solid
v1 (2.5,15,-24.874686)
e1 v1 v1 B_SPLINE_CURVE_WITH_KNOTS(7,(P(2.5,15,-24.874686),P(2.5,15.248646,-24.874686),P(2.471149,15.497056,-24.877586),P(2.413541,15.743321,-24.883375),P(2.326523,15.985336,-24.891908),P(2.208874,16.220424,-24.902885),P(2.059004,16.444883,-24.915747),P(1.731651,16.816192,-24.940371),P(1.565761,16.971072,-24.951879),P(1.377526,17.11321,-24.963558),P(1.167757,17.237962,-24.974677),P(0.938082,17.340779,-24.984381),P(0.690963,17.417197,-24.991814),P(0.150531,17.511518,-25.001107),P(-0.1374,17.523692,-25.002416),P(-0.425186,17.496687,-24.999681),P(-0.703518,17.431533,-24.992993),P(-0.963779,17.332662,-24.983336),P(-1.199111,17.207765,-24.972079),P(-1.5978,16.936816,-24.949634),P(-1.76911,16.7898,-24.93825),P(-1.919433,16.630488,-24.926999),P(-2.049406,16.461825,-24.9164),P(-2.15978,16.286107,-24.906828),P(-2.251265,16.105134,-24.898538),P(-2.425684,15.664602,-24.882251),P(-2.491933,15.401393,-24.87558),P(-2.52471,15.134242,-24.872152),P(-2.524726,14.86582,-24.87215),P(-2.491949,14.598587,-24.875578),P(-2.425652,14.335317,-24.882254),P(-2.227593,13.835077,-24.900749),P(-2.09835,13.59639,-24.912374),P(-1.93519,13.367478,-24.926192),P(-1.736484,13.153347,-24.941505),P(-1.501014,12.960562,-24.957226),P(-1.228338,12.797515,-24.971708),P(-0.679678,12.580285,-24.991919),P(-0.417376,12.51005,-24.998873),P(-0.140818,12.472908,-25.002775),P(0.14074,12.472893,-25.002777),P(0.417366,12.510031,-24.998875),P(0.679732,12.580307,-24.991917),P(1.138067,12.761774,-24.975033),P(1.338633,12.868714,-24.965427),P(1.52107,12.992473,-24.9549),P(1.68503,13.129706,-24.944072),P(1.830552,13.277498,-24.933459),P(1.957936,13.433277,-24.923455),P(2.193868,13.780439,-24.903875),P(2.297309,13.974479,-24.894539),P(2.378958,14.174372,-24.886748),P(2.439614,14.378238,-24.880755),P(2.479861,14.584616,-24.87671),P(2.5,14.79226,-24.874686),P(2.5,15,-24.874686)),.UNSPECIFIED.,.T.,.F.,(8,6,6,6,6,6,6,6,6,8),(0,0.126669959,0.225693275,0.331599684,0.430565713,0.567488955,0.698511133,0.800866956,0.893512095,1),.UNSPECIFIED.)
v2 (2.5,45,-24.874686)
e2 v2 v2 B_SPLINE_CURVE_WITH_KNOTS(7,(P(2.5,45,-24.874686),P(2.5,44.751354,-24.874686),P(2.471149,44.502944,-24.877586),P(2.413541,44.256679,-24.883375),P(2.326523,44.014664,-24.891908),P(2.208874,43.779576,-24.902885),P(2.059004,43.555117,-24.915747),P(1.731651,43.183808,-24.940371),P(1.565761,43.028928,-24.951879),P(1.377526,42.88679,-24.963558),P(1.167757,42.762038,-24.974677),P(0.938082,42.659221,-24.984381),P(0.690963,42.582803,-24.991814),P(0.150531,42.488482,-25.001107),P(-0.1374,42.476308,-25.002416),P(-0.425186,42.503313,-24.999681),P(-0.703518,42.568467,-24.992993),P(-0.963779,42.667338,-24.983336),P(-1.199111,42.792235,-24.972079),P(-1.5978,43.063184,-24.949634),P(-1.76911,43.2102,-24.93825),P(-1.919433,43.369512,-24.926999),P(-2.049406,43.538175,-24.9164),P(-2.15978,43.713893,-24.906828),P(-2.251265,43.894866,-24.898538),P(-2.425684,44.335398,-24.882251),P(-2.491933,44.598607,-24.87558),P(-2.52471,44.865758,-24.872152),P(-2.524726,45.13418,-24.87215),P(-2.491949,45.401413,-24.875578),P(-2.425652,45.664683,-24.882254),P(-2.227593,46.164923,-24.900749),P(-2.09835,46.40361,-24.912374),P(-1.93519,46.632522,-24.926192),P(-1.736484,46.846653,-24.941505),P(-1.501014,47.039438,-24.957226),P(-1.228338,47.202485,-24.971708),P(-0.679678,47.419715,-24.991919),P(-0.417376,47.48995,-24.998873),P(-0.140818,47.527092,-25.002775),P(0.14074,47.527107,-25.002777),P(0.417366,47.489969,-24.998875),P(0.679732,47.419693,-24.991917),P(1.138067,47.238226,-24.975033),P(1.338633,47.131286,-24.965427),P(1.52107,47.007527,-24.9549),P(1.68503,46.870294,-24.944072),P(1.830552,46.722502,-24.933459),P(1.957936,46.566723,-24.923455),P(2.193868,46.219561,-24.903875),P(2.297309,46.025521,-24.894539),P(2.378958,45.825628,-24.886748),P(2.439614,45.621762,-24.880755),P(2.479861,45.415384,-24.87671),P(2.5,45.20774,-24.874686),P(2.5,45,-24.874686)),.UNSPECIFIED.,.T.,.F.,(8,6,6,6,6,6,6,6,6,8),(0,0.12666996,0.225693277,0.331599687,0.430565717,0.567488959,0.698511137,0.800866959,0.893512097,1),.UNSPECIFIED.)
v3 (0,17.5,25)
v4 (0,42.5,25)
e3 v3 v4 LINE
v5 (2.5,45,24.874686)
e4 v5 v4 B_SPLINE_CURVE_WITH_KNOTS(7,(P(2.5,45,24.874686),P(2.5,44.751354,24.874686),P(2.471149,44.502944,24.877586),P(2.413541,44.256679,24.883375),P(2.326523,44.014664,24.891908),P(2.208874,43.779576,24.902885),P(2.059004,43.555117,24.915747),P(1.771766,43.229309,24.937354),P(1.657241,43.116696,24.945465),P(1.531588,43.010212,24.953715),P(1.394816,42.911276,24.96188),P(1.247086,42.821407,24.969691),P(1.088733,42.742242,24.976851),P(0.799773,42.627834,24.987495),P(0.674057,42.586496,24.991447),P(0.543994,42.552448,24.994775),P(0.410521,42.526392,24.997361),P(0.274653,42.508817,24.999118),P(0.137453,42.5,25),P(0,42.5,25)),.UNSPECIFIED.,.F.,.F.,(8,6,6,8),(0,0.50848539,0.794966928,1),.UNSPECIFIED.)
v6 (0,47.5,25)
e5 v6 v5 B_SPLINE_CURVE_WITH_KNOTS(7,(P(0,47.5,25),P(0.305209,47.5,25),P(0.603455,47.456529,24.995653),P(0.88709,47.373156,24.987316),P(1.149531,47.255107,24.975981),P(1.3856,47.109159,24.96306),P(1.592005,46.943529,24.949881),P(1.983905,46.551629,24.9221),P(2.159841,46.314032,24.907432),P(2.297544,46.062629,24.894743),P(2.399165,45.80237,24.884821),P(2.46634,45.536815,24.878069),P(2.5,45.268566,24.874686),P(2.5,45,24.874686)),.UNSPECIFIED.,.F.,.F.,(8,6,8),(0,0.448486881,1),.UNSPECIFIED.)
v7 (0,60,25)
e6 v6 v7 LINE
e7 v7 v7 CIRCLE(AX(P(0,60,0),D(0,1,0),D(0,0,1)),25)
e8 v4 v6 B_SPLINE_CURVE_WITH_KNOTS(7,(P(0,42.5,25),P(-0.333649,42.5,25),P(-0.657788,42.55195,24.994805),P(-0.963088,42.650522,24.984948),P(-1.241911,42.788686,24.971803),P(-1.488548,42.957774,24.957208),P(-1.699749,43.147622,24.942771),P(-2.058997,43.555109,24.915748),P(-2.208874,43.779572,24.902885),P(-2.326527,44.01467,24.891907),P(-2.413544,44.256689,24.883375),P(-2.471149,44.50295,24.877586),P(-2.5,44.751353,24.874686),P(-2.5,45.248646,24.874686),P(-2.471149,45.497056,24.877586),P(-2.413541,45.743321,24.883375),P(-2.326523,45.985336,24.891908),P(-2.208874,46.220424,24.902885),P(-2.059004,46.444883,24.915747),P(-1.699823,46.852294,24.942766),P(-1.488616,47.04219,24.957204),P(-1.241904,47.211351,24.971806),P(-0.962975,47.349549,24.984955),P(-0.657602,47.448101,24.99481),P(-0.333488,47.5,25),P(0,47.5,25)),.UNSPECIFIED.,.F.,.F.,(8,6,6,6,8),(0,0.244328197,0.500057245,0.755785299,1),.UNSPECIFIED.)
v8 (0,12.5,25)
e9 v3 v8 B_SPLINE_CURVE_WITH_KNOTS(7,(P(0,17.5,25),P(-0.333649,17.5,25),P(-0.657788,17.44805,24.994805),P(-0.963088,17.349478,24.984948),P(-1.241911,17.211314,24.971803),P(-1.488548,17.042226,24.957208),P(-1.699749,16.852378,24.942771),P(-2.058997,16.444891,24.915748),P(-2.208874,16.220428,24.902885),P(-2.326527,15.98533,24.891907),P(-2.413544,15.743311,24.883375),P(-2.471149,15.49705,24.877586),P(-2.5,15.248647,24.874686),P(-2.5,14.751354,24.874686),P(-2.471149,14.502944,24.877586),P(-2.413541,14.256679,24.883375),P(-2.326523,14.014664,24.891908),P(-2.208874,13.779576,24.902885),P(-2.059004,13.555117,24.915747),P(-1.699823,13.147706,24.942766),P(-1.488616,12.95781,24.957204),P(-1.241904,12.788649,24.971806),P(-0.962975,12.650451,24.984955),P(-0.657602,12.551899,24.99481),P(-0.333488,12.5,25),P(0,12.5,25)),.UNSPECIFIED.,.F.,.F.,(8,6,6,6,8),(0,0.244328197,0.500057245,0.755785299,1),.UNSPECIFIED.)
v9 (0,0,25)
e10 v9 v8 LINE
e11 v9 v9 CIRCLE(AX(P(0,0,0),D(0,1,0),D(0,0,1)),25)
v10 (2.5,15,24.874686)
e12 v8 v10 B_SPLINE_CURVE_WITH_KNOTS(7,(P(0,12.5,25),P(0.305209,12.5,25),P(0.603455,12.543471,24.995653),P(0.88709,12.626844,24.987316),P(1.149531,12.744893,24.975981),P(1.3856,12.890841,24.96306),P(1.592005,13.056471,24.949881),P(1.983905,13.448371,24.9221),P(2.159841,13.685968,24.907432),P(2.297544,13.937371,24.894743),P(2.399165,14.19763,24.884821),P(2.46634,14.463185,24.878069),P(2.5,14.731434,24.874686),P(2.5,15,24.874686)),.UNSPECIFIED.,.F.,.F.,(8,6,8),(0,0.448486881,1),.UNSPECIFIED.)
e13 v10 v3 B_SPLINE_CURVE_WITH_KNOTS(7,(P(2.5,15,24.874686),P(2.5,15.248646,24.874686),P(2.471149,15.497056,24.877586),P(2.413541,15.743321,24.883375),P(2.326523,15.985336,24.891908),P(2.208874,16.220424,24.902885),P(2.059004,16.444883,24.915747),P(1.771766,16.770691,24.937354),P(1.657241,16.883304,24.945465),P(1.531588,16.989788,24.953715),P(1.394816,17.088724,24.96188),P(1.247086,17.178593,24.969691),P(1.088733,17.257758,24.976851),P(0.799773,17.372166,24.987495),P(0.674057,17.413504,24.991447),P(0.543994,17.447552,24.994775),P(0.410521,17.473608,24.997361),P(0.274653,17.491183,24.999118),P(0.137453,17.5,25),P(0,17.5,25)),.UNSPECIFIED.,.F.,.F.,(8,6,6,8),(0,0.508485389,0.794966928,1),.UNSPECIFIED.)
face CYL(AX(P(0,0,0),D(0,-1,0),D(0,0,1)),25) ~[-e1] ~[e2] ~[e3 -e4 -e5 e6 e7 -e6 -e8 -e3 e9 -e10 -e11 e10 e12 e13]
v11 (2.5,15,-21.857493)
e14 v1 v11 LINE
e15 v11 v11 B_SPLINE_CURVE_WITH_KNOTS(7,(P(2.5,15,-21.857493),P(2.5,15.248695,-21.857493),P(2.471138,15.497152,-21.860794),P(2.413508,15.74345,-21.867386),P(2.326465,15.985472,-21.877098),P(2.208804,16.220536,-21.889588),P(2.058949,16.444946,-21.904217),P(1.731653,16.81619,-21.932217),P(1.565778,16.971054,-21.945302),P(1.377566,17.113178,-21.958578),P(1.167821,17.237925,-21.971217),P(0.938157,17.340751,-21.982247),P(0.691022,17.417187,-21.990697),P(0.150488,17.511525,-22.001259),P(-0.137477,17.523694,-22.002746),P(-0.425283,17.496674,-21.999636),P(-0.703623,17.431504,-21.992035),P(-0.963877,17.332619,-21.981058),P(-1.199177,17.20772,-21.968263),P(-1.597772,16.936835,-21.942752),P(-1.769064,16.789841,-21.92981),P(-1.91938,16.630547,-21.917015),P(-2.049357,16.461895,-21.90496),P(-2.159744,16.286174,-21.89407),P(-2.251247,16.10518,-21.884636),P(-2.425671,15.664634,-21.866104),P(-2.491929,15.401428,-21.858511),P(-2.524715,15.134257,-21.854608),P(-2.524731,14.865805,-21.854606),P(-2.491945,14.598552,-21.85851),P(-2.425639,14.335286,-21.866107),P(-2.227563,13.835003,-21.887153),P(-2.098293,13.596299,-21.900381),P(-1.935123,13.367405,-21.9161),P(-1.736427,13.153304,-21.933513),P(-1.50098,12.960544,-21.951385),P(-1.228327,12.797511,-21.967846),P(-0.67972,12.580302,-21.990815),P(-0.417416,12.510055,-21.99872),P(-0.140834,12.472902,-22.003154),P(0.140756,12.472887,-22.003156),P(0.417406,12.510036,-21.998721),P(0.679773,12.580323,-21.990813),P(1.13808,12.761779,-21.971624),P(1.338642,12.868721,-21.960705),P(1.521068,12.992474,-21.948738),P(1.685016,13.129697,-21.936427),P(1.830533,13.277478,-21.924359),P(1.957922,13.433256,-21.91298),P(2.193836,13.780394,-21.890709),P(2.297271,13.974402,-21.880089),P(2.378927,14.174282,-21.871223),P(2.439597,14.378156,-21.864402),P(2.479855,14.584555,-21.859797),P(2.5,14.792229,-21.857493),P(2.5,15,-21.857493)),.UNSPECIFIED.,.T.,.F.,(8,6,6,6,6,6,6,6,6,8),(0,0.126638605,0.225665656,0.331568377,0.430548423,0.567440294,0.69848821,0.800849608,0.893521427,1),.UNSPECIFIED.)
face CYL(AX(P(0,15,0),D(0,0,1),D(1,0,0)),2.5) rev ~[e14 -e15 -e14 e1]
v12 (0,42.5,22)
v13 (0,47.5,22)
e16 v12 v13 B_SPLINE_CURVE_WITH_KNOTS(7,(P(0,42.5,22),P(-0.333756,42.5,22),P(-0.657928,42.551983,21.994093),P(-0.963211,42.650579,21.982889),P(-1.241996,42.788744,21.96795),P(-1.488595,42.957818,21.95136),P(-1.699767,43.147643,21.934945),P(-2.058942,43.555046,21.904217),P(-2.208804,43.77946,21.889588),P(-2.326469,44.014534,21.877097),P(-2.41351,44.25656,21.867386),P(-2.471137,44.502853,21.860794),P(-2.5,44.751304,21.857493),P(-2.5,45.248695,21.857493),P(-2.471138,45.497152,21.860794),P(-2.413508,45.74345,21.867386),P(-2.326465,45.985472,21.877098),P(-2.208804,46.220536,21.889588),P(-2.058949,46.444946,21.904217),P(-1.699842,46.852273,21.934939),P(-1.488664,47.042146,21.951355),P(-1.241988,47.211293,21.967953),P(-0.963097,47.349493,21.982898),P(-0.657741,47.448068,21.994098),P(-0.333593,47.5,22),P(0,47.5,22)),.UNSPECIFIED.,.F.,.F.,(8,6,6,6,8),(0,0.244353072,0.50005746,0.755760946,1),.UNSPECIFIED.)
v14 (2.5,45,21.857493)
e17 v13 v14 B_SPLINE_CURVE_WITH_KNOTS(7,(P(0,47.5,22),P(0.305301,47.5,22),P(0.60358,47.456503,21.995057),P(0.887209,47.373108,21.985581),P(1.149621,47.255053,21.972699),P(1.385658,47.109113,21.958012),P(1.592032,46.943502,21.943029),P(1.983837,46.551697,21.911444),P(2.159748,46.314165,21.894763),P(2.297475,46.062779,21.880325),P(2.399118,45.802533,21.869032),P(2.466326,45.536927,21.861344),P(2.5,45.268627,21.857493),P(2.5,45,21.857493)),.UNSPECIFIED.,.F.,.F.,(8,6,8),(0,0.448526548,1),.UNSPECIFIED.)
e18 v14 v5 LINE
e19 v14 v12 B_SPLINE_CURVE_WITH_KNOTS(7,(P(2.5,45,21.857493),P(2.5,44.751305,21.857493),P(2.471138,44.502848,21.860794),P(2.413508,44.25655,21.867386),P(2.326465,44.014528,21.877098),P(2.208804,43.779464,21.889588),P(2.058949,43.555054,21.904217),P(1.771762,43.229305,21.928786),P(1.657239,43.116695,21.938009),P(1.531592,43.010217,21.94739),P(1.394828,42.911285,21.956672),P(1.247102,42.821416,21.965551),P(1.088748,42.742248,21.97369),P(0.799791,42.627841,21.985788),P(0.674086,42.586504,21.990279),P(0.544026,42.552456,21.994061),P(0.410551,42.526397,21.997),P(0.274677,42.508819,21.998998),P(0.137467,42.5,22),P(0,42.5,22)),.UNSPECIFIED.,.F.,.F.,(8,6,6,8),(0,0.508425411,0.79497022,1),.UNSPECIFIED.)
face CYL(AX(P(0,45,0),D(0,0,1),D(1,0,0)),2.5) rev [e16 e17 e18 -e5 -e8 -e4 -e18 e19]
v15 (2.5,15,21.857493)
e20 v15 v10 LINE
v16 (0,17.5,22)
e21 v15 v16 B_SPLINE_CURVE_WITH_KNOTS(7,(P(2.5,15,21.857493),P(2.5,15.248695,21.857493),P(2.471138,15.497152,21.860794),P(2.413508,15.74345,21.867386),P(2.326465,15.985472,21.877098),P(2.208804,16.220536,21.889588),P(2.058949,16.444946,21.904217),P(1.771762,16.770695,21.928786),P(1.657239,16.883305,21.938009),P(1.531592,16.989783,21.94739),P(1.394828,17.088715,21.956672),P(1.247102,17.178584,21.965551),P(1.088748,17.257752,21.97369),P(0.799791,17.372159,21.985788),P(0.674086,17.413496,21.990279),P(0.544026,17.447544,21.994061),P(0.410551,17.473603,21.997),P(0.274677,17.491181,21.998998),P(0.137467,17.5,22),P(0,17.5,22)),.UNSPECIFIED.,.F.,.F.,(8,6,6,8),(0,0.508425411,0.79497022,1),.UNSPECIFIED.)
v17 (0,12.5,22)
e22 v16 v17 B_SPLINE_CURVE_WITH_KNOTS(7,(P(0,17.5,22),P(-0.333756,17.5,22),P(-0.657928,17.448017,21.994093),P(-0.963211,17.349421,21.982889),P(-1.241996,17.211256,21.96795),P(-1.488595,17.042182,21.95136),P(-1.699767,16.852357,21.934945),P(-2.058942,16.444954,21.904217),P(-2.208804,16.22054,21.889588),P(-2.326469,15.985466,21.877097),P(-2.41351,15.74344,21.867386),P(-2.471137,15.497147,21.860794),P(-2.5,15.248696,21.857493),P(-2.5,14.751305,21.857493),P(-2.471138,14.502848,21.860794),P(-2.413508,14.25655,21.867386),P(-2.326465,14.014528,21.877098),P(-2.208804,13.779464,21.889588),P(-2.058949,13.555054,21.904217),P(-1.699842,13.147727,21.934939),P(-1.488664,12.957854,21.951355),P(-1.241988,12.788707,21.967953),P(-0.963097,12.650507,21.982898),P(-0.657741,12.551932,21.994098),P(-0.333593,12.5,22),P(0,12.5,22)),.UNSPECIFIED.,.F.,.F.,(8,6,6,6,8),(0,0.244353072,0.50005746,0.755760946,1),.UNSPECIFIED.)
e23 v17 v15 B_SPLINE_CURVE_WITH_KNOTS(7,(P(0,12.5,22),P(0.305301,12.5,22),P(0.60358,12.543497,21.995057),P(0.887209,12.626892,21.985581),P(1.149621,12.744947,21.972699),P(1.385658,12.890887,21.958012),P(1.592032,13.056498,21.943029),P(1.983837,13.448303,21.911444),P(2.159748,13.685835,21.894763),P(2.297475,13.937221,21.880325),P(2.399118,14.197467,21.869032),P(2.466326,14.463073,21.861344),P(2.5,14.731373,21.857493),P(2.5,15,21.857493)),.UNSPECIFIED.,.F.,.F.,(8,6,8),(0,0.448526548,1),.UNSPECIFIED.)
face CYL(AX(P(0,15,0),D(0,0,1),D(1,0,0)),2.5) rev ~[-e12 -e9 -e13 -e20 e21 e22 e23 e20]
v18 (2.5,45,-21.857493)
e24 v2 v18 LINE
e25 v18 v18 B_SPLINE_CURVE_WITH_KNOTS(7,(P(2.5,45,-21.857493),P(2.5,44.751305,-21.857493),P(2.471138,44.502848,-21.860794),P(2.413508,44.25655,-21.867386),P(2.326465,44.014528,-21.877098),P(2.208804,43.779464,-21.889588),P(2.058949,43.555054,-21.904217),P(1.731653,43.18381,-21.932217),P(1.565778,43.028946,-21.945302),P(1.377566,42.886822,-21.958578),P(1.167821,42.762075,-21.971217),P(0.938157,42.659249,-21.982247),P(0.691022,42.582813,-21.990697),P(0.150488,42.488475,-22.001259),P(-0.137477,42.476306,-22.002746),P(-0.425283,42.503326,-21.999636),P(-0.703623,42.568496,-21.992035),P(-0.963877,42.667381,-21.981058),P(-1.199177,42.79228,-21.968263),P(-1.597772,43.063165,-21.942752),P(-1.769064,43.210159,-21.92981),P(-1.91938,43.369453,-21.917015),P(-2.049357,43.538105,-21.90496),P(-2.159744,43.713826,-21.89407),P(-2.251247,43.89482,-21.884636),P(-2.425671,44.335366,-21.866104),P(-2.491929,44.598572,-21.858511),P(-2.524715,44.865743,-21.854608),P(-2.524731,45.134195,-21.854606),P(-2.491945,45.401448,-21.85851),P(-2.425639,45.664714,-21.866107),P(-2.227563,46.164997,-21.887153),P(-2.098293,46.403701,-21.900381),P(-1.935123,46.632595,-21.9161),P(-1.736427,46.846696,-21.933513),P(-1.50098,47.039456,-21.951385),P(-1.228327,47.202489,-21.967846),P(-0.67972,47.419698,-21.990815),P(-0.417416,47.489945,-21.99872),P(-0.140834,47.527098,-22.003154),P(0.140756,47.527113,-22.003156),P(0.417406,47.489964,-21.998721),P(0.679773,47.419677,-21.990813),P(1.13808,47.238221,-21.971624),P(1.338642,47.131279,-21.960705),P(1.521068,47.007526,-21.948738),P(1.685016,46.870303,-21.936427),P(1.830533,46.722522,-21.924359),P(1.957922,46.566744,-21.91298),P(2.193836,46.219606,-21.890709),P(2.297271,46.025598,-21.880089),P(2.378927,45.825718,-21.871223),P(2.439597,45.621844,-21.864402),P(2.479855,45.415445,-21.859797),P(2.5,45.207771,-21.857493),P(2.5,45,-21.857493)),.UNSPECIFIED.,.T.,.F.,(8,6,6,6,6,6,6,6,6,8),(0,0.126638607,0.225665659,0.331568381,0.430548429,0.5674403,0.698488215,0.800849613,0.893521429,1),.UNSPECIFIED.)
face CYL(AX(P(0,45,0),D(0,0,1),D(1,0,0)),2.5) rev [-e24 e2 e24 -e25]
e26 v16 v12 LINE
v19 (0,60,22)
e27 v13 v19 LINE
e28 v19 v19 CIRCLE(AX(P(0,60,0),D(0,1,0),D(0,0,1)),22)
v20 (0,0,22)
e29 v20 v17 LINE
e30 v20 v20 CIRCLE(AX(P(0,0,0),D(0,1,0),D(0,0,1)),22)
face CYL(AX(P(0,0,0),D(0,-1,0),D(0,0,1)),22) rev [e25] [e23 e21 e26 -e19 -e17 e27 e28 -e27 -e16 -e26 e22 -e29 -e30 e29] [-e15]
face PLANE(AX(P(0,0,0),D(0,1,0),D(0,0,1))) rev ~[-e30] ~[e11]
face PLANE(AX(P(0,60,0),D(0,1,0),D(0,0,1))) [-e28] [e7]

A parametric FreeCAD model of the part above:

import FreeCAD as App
import Part
import Sketcher

V = App.Vector

doc = App.newDocument("Part")
body = doc.addObject("PartDesign::Body", "Body")

sketch1 = doc.addObject("Sketcher::SketchObject", "Sketch")
body.addObject(sketch1)
sketch1.AttachmentSupport = (doc.XZ_Plane, [""])
sketch1.MapMode = "FlatFace"
sketch1.addGeometry(Part.Circle(V(0, 0, 0), V(0, 0, 1), 25), False)
sketch1.addGeometry(Part.Circle(V(0, 0, 0), V(0, 0, 1), 22), False)
sketch1.addConstraint(Sketcher.Constraint("Coincident", 0, 3, -1, 1))
sketch1.addConstraint(Sketcher.Constraint("Coincident", 1, 3, -1, 1))
sketch1.addConstraint(Sketcher.Constraint("Diameter", 0, 50.0))
sketch1.addConstraint(Sketcher.Constraint("Diameter", 1, 44.0))
pad1 = doc.addObject("PartDesign::Pad", "Pad")
body.addObject(pad1)
pad1.Profile = sketch1
pad1.Length = 60
pad1.Reversed = True

sketch2 = doc.addObject("Sketcher::SketchObject", "Sketch001")
body.addObject(sketch2)
sketch2.AttachmentSupport = (doc.XY_Plane, [""])
sketch2.MapMode = "FlatFace"
sketch2.addGeometry(Part.Circle(V(0, 15, 0), V(0, 0, 1), 2.5), False)
sketch2.addConstraint(Sketcher.Constraint("PointOnObject", 0, 3, -2))
sketch2.addConstraint(Sketcher.Constraint("Diameter", 0, 5.0))
sketch2.addConstraint(Sketcher.Constraint("DistanceY", -1, 1, 0, 3, 15.0))
pocket1 = doc.addObject("PartDesign::Pocket", "Pocket")
body.addObject(pocket1)
pocket1.Profile = sketch2
pocket1.Length = 141.283883
pocket1.Midplane = True
doc.recompute()

datumplane = doc.addObject("PartDesign::Plane", "DatumPlane")
body.addObject(datumplane)
datumplane.AttachmentSupport = (doc.XZ_Plane, [""])
datumplane.MapMode = "FlatFace"
datumplane.AttachmentOffset = App.Placement(V(0, 0, -30), App.Rotation())
mirrored = doc.addObject("PartDesign::Mirrored", "Mirrored")
body.addObject(mirrored)
mirrored.Originals = [pocket1]
mirrored.MirrorPlane = (datumplane, [""])
body.Tip = mirrored

doc.recompute()
